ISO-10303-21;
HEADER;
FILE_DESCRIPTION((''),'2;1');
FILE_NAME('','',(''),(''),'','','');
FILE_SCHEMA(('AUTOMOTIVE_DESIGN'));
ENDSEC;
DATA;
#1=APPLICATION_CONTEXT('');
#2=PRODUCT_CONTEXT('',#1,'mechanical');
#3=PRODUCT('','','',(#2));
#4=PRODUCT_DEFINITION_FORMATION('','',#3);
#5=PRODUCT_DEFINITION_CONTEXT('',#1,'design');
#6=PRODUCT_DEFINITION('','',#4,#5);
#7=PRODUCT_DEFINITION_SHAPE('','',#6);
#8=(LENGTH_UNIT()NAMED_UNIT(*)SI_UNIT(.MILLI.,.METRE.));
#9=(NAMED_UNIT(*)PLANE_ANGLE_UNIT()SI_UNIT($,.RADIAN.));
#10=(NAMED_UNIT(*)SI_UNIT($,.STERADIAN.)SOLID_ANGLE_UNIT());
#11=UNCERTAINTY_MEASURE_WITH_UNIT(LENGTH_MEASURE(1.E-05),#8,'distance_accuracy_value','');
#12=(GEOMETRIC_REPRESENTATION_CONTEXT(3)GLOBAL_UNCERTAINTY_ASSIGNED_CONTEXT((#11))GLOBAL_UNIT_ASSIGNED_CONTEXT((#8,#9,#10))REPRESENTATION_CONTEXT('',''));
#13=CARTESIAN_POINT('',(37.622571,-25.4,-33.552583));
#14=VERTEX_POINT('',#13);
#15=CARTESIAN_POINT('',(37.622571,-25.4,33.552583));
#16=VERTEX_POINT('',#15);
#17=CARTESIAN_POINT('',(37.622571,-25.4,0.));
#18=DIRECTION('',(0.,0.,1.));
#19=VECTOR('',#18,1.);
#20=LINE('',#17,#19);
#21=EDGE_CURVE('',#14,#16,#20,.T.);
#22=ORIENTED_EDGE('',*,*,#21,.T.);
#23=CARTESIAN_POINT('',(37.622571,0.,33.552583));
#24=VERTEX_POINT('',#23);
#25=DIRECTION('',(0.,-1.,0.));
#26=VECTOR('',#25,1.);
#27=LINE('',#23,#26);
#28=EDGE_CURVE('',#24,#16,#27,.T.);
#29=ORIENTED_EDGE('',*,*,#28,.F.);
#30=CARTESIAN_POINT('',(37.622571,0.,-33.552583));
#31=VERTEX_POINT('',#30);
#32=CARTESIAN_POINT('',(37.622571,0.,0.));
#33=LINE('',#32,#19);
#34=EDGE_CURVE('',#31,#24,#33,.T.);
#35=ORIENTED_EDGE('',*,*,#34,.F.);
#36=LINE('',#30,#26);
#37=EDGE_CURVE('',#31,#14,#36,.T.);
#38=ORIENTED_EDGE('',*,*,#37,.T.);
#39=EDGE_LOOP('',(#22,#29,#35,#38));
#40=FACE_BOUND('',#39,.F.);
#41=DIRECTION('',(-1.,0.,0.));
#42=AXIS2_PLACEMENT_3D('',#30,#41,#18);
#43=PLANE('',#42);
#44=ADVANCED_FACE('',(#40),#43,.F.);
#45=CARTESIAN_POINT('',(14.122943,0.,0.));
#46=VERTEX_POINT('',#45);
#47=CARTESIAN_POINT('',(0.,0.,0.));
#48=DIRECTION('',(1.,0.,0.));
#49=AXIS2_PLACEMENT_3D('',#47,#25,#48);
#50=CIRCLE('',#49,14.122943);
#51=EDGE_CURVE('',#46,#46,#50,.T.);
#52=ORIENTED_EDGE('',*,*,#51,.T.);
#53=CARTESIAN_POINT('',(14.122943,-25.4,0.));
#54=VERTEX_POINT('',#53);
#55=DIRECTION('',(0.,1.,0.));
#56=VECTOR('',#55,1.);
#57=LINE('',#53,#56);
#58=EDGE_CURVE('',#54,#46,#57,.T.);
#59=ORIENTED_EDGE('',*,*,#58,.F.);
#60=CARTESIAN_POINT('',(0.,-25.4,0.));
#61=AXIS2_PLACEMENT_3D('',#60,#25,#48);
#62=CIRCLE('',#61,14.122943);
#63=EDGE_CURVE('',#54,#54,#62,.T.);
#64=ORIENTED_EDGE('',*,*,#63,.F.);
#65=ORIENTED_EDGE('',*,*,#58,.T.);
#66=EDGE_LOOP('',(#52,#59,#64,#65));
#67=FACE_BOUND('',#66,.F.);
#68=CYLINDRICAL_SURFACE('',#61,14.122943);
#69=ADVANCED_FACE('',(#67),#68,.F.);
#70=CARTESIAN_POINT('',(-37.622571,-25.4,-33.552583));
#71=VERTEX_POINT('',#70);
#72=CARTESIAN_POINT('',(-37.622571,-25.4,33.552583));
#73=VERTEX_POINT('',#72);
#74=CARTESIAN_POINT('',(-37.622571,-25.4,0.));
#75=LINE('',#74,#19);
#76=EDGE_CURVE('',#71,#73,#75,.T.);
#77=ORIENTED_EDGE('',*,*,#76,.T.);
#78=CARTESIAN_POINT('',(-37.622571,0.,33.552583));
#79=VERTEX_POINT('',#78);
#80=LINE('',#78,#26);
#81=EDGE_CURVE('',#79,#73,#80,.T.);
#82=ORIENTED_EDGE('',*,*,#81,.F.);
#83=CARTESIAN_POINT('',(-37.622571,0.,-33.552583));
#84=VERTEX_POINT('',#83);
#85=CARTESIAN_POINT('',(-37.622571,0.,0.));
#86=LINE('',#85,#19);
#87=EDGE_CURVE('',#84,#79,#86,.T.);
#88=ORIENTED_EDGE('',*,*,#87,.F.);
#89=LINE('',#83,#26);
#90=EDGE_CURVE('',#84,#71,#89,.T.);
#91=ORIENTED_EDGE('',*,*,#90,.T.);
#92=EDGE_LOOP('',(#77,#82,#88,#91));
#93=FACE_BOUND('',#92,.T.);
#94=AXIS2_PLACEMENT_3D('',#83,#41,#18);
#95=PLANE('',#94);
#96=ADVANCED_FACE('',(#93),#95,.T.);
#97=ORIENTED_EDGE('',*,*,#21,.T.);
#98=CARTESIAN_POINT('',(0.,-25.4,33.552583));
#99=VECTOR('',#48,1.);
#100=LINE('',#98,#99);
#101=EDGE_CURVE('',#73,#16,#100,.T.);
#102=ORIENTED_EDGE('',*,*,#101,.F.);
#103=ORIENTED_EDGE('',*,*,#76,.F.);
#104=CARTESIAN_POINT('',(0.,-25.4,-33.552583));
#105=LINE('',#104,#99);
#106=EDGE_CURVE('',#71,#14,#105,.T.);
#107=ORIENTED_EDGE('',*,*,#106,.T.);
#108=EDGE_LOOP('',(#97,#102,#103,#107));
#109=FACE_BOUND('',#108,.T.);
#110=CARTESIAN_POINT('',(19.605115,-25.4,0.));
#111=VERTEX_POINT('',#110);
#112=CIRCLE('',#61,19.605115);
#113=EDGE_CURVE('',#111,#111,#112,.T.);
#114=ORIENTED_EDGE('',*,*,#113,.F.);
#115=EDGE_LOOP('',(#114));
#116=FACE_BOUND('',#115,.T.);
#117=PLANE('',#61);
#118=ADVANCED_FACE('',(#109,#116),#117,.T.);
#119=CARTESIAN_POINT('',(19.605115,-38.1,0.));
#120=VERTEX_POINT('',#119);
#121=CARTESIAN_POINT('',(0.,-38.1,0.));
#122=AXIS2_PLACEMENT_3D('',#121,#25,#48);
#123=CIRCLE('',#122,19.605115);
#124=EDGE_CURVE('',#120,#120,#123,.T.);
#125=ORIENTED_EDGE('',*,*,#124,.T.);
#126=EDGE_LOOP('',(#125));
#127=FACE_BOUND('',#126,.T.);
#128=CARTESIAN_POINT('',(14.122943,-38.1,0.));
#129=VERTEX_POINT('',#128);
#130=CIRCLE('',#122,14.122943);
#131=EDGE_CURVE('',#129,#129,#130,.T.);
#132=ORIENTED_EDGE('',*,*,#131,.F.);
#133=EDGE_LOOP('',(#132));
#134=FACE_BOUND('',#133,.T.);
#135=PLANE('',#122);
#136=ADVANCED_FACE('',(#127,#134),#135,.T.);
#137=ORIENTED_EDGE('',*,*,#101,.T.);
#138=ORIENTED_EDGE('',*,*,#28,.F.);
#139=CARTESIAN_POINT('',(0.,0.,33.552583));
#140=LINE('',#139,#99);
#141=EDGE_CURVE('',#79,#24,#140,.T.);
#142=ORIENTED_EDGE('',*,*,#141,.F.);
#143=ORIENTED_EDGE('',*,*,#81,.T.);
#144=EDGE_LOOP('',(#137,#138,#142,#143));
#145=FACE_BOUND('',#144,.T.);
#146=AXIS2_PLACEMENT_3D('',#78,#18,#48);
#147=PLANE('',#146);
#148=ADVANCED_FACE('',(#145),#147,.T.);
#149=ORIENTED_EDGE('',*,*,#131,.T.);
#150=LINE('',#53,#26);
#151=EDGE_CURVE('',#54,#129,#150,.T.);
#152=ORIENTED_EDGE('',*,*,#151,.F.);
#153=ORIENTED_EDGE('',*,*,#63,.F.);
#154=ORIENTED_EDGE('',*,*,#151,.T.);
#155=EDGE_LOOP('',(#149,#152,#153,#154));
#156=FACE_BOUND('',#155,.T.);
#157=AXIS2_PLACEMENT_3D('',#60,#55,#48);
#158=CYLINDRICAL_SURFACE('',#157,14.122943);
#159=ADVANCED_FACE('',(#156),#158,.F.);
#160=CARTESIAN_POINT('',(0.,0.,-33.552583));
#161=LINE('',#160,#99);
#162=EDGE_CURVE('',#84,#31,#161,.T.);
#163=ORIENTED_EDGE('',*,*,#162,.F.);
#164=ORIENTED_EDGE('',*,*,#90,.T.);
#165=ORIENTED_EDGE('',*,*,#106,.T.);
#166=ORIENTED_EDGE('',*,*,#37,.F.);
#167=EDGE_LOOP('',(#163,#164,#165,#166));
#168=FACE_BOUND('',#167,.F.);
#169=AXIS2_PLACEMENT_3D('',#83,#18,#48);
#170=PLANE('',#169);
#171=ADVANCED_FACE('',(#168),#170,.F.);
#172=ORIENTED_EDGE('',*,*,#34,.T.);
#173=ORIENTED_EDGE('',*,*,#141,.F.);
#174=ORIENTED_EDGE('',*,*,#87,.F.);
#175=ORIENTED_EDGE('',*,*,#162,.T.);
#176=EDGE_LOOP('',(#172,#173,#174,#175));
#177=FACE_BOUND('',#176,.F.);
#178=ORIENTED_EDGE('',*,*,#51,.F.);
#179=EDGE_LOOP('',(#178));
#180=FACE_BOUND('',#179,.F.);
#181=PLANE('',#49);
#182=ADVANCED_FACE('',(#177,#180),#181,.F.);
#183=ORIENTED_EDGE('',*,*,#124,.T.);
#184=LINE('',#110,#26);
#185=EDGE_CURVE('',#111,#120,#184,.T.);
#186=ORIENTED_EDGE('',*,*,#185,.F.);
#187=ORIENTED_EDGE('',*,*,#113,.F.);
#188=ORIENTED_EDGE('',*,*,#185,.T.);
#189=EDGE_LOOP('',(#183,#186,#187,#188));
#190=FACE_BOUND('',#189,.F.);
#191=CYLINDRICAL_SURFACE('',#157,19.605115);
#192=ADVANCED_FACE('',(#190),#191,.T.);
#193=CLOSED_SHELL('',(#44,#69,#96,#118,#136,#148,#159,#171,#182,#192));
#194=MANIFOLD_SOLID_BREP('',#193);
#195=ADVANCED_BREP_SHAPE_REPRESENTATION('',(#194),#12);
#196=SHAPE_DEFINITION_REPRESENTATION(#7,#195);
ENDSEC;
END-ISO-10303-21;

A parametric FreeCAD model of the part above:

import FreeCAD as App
import Part
import Sketcher
from FreeCAD import Vector
Q = App.Units.Quantity


def add_polygon(sketch, points):
    """Adds a closed chain of lines whose ends are joined by coincident constraints."""
    first, n = sketch.GeometryCount, len(points)
    for a, b in zip(points, points[1:] + points[:1]):
        sketch.addGeometry(Part.LineSegment(App.Vector(*a, 0), App.Vector(*b, 0)), False)
    for i in range(n):
        sketch.addConstraint(Sketcher.Constraint("Coincident", first + i, 2, first + (i + 1) % n, 1))

doc = App.newDocument("Part")
body = doc.addObject("PartDesign::Body", "Body")

sketch1 = doc.addObject("Sketcher::SketchObject", "Sketch")
body.addObject(sketch1)
sketch1.AttachmentSupport = (doc.XZ_Plane, [""])
sketch1.MapMode = "FlatFace"
add_polygon(sketch1, [(-37.622571, 33.552583), (-37.622571, -33.552583), (37.622571, -33.552583), (37.622571, 33.552583)])
sketch1.addConstraint(Sketcher.Constraint("Vertical", 0))
sketch1.addConstraint(Sketcher.Constraint("Horizontal", 1))
sketch1.addConstraint(Sketcher.Constraint("Vertical", 2))
sketch1.addConstraint(Sketcher.Constraint("Horizontal", 3))
sketch1.addConstraint(Sketcher.Constraint("Symmetric", 0, 2, 2, 2, -1, 1))
sketch1.addConstraint(Sketcher.Constraint("DistanceX", 1, 1, 1, 2, Q("75.245142 mm")))
sketch1.addConstraint(Sketcher.Constraint("DistanceY", 0, 2, 0, 1, Q("67.105166 mm")))
pad1 = doc.addObject("PartDesign::Pad", "Pad")
body.addObject(pad1)
pad1.Profile = sketch1
pad1.Length = Q("1 in")

sketch2 = doc.addObject("Sketcher::SketchObject", "Sketch001")
body.addObject(sketch2)
sketch2.AttachmentSupport = (doc.XZ_Plane, [""])
sketch2.MapMode = "FlatFace"
sketch2.AttachmentOffset = App.Placement(Vector(0, 0, 1 * 25.4), App.Rotation())
sketch2.addGeometry(Part.Circle(Vector(0, 0, 0), Vector(0, 0, 1), 14.122943), False)
sketch2.addConstraint(Sketcher.Constraint("Coincident", 0, 3, -1, 1))
sketch2.addConstraint(Sketcher.Constraint("Diameter", 0, Q("28.245886 mm")))
pocket1 = doc.addObject("PartDesign::Pocket", "Pocket")
body.addObject(pocket1)
pocket1.Profile = sketch2
pocket1.Type = "ThroughAll"

sketch3 = doc.addObject("Sketcher::SketchObject", "Sketch002")
body.addObject(sketch3)
sketch3.AttachmentSupport = (doc.XZ_Plane, [""])
sketch3.MapMode = "FlatFace"
sketch3.AttachmentOffset = App.Placement(Vector(0, 0, 1 * 25.4), App.Rotation())
sketch3.addGeometry(Part.Circle(Vector(0, 0, 0), Vector(0, 0, 1), 19.605115), False)
sketch3.addGeometry(Part.Circle(Vector(0, 0, 0), Vector(0, 0, 1), 14.122943), False)
sketch3.addConstraint(Sketcher.Constraint("Coincident", 0, 3, -1, 1))
sketch3.addConstraint(Sketcher.Constraint("Coincident", 1, 3, -1, 1))
sketch3.addConstraint(Sketcher.Constraint("Diameter", 0, Q("39.21023 mm")))
sketch3.addConstraint(Sketcher.Constraint("Diameter", 1, Q("28.245886 mm")))
pad2 = doc.addObject("PartDesign::Pad", "Pad001")
body.addObject(pad2)
pad2.Profile = sketch3
pad2.Length = Q("0.5 in")

doc.recompute()
